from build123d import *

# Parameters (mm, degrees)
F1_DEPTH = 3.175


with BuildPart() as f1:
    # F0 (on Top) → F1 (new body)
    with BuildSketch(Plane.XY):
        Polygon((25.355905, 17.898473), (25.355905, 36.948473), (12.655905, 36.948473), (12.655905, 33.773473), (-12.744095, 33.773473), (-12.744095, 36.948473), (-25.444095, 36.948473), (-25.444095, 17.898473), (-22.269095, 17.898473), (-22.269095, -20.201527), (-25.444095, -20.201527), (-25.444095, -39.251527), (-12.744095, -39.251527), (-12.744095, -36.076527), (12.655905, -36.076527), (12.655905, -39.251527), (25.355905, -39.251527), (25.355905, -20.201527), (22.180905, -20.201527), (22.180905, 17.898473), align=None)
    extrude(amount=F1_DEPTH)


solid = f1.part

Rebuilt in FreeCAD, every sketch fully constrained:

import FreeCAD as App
import Part
import Sketcher
Q = App.Units.Quantity

doc = App.newDocument("Part")
body = doc.addObject("PartDesign::Body", "Body")

# Sketch on XY plane
sketch1 = body.newObject("Sketcher::SketchObject", "Sketch")
sketch1.AttachmentSupport = (doc.getObject("XY_Plane"), [""])
sketch1.MapMode = "FlatFace"
sketch1.addGeometry([
    Part.LineSegment(App.Vector(25.4, 17.9, 0), App.Vector(25.4, 36.9, 0)),  # 0
    Part.LineSegment(App.Vector(25.4, 36.9, 0), App.Vector(12.7, 36.9, 0)),  # 1
    Part.LineSegment(App.Vector(12.7, 36.9, 0), App.Vector(12.7, 33.8, 0)),  # 2
    Part.LineSegment(App.Vector(12.7, 33.8, 0), App.Vector(-12.7, 33.8, 0)),  # 3
    Part.LineSegment(App.Vector(-12.7, 33.8, 0), App.Vector(-12.7, 36.9, 0)),  # 4
    Part.LineSegment(App.Vector(-12.7, 36.9, 0), App.Vector(-25.4, 36.9, 0)),  # 5
    Part.LineSegment(App.Vector(-25.4, 36.9, 0), App.Vector(-25.4, 17.9, 0)),  # 6
    Part.LineSegment(App.Vector(-25.4, 17.9, 0), App.Vector(-22.3, 17.9, 0)),  # 7
    Part.LineSegment(App.Vector(-22.3, 17.9, 0), App.Vector(-22.3, -20.2, 0)),  # 8
    Part.LineSegment(App.Vector(-22.3, -20.2, 0), App.Vector(-25.4, -20.2, 0)),  # 9
    Part.LineSegment(App.Vector(-25.4, -20.2, 0), App.Vector(-25.4, -39.3, 0)),  # 10
    Part.LineSegment(App.Vector(-25.4, -39.3, 0), App.Vector(-12.7, -39.3, 0)),  # 11
    Part.LineSegment(App.Vector(-12.7, -39.3, 0), App.Vector(-12.7, -36.1, 0)),  # 12
    Part.LineSegment(App.Vector(-12.7, -36.1, 0), App.Vector(12.7, -36.1, 0)),  # 13
    Part.LineSegment(App.Vector(12.7, -36.1, 0), App.Vector(12.7, -39.3, 0)),  # 14
    Part.LineSegment(App.Vector(12.7, -39.3, 0), App.Vector(25.4, -39.3, 0)),  # 15
    Part.LineSegment(App.Vector(25.4, -39.3, 0), App.Vector(25.4, -20.2, 0)),  # 16
    Part.LineSegment(App.Vector(25.4, -20.2, 0), App.Vector(22.2, -20.2, 0)),  # 17
    Part.LineSegment(App.Vector(22.2, -20.2, 0), App.Vector(22.2, 17.9, 0)),  # 18
    Part.LineSegment(App.Vector(22.2, 17.9, 0), App.Vector(25.4, 17.9, 0)),  # 19
], False)
sketch1.addConstraint([
    Sketcher.Constraint("Coincident", 0, 2, 1, 1),
    Sketcher.Constraint("Coincident", 1, 2, 2, 1),
    Sketcher.Constraint("Coincident", 2, 2, 3, 1),
    Sketcher.Constraint("Coincident", 3, 2, 4, 1),
    Sketcher.Constraint("Coincident", 4, 2, 5, 1),
    Sketcher.Constraint("Coincident", 5, 2, 6, 1),
    Sketcher.Constraint("Coincident", 6, 2, 7, 1),
    Sketcher.Constraint("Coincident", 7, 2, 8, 1),
    Sketcher.Constraint("Coincident", 8, 2, 9, 1),
    Sketcher.Constraint("Coincident", 9, 2, 10, 1),
    Sketcher.Constraint("Coincident", 10, 2, 11, 1),
    Sketcher.Constraint("Coincident", 11, 2, 12, 1),
    Sketcher.Constraint("Coincident", 12, 2, 13, 1),
    Sketcher.Constraint("Coincident", 13, 2, 14, 1),
    Sketcher.Constraint("Coincident", 14, 2, 15, 1),
    Sketcher.Constraint("Coincident", 15, 2, 16, 1),
    Sketcher.Constraint("Coincident", 16, 2, 17, 1),
    Sketcher.Constraint("Coincident", 17, 2, 18, 1),
    Sketcher.Constraint("Coincident", 18, 2, 19, 1),
    Sketcher.Constraint("Coincident", 19, 2, 0, 1),
    Sketcher.Constraint("Vertical", 0),
    Sketcher.Constraint("Horizontal", 1),
    Sketcher.Constraint("Vertical", 2),
    Sketcher.Constraint("Horizontal", 3),
    Sketcher.Constraint("Vertical", 4),
    Sketcher.Constraint("Horizontal", 5),
    Sketcher.Constraint("Vertical", 6),
    Sketcher.Constraint("Horizontal", 7),
    Sketcher.Constraint("Vertical", 8),
    Sketcher.Constraint("Horizontal", 9),
    Sketcher.Constraint("Vertical", 10),
    Sketcher.Constraint("Horizontal", 11),
    Sketcher.Constraint("Vertical", 12),
    Sketcher.Constraint("Horizontal", 13),
    Sketcher.Constraint("Vertical", 14),
    Sketcher.Constraint("Horizontal", 15),
    Sketcher.Constraint("Vertical", 16),
    Sketcher.Constraint("Horizontal", 17),
    Sketcher.Constraint("Vertical", 18),
    Sketcher.Constraint("Horizontal", 19),
    Sketcher.Constraint("Horizontal", 1, 2, 4, 2),
    Sketcher.Constraint("Horizontal", 11, 2, 14, 2),
    Sketcher.Constraint("Horizontal", 9, 2, 16, 2),
    Sketcher.Constraint("Horizontal", 7, 2, 18, 2),
    Sketcher.Constraint("Vertical", 6, 2, 9, 2),
    Sketcher.Constraint("Vertical", 4, 2, 11, 2),
    Sketcher.Constraint("Vertical", 2, 2, 13, 2),
    Sketcher.Constraint("Vertical", 0, 2, 15, 2),
    Sketcher.Constraint("Equal", 1, 5),
    Sketcher.Constraint("Equal", 9, 17),
    Sketcher.Constraint("Equal", 19, 2),
    Sketcher.Constraint("Equal", 6, 10),
    Sketcher.Constraint("Equal", 4, 12),
    Sketcher.Constraint("DistanceX", 3, 2, 3, 1, Q("1 in")),
    Sketcher.Constraint("DistanceX", 1, 2, 1, 1, Q("0.5 in")),
    Sketcher.Constraint("DistanceY", 8, 2, 8, 1, Q("1.5 in")),
    Sketcher.Constraint("DistanceY", 0, 1, 0, 2, Q("0.75 in")),
    Sketcher.Constraint("DistanceX", 7, 1, 7, 2, Q("0.125 in")),
    Sketcher.Constraint("DistanceX", -1, 1, 0, 2, Q("25.355905 mm")),
    Sketcher.Constraint("DistanceY", -1, 1, 0, 2, Q("36.948473 mm")),
])
pad1 = body.newObject("PartDesign::Pad", "Pad")
pad1.Profile = sketch1
pad1.Length = Q("0.125 in")

doc.recompute()
